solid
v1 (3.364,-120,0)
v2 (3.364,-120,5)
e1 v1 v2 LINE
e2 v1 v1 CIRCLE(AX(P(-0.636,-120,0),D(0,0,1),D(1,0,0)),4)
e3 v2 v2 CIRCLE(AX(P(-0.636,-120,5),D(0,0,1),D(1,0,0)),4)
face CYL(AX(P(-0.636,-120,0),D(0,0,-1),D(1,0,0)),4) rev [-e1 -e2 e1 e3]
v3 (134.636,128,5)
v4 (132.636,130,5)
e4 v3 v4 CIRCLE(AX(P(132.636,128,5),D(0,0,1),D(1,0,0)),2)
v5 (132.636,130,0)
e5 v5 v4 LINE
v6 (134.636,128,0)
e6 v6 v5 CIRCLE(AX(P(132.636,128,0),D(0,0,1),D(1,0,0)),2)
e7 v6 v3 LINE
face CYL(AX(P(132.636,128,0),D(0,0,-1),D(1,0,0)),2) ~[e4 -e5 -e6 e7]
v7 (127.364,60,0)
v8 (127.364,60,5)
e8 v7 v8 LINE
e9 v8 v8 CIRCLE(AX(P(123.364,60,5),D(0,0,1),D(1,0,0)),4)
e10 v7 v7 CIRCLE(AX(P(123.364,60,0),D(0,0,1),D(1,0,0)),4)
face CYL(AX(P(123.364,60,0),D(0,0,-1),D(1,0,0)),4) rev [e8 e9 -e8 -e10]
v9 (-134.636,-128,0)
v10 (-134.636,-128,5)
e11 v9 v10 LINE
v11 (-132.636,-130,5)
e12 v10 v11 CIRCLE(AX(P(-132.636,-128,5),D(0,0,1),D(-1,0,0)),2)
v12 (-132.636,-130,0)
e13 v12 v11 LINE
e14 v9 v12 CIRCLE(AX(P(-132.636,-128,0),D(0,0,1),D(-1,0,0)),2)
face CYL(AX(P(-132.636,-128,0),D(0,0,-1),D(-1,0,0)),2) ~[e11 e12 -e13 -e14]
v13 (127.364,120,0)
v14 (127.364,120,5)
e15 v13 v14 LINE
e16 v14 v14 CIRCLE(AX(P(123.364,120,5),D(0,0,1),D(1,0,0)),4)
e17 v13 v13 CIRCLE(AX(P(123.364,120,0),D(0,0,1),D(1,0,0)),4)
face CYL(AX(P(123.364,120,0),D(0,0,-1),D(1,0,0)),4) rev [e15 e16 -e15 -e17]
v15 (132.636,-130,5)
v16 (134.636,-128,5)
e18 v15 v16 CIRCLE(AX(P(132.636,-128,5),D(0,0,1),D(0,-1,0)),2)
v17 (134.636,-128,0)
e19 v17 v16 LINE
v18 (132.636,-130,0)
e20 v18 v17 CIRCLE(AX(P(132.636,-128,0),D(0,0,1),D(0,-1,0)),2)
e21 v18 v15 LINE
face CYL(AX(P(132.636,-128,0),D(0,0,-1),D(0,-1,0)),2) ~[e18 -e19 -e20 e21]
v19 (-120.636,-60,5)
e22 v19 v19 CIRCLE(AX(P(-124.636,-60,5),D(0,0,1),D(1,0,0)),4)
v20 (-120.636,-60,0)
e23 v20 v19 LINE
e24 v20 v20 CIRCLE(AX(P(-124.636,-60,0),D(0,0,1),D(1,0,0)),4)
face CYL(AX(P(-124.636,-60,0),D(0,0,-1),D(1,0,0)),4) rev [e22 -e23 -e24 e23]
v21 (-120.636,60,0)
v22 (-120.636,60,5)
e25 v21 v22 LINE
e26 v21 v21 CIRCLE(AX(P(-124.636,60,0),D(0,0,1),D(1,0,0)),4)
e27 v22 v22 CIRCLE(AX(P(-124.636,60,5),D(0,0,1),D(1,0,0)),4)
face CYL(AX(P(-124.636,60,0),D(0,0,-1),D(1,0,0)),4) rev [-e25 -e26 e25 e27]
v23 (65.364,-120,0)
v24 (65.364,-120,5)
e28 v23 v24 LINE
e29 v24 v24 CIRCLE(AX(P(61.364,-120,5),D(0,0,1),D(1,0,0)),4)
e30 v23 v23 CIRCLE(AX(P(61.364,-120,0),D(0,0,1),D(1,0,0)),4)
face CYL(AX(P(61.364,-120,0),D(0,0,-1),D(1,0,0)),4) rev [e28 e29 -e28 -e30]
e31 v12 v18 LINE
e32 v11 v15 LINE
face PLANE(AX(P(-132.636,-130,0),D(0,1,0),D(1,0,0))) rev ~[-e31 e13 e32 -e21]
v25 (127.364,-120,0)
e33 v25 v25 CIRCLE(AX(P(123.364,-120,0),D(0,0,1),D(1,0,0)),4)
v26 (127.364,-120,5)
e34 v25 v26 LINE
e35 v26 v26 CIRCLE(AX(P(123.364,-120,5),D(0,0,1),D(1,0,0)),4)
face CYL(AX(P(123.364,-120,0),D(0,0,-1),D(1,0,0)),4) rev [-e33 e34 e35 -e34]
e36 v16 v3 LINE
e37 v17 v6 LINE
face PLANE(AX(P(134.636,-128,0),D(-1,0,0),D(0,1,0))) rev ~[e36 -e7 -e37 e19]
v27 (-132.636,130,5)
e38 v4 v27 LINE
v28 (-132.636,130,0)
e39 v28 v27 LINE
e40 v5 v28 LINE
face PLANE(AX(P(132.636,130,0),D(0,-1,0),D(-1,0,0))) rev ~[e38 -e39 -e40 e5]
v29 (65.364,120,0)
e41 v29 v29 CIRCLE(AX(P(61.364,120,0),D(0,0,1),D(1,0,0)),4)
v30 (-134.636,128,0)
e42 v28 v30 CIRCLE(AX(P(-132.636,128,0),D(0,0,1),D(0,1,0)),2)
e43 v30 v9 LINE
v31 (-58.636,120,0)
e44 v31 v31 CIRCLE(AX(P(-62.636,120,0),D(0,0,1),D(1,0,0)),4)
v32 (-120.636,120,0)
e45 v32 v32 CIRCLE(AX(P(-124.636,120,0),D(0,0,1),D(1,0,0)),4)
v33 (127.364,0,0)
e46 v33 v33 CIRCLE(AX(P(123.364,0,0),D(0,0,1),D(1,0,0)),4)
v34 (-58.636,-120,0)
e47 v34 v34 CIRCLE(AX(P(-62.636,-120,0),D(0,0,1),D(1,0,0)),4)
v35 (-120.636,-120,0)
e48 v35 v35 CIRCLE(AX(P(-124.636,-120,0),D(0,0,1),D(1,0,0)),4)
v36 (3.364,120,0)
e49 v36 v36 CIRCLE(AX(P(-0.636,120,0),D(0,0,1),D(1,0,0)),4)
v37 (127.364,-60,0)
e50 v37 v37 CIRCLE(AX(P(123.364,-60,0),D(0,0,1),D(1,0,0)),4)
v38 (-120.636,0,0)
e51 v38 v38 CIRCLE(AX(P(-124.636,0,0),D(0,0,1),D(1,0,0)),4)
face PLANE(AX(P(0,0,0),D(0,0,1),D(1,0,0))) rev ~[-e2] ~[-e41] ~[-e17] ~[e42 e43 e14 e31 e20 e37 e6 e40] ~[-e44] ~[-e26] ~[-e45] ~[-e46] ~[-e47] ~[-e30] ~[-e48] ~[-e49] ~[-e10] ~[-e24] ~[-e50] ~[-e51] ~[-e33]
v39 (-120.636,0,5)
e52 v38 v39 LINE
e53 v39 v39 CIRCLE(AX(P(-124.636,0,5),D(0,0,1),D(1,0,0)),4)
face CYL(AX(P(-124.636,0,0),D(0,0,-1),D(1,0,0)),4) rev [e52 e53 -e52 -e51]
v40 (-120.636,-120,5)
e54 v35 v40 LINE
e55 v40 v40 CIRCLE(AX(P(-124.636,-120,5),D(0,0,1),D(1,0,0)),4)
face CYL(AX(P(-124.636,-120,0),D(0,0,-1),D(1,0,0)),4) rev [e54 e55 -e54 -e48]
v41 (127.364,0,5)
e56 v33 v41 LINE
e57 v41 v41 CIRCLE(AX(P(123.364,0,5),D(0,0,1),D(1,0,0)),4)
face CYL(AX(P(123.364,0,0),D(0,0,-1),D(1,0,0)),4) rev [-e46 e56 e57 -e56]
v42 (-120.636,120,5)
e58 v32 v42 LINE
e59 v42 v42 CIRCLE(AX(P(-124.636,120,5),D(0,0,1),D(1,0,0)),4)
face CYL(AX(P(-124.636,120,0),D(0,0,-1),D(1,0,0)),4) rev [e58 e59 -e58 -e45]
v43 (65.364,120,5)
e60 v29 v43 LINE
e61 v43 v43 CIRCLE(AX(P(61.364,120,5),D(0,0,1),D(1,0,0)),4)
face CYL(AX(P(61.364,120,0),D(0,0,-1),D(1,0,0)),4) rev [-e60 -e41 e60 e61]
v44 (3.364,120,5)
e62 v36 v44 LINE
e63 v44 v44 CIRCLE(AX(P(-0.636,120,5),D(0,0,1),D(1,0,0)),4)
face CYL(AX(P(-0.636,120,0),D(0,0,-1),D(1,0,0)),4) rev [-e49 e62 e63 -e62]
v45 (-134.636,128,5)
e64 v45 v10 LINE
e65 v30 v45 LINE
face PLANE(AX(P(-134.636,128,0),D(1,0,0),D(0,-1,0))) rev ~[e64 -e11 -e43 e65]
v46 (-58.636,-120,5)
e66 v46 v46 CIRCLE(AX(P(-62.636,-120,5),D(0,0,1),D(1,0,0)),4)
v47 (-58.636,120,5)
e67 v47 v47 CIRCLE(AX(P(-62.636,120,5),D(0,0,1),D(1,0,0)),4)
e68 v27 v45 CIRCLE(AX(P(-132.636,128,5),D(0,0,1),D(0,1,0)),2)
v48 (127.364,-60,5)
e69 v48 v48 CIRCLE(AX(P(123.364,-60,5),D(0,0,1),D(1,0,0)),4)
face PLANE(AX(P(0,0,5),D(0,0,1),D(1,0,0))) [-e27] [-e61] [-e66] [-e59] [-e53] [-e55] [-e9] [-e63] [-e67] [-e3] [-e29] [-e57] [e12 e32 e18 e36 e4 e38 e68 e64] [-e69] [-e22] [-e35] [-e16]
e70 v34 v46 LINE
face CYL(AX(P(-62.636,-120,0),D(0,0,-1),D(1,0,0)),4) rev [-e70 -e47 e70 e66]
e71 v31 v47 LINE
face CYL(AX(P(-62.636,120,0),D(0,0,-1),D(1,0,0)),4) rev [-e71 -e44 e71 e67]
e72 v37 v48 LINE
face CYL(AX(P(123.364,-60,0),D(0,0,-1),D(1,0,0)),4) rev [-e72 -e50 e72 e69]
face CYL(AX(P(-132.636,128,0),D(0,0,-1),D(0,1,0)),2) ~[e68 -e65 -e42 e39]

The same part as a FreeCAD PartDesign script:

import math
import FreeCAD as App
import Part
import Sketcher

doc = App.newDocument("Part")
body = doc.addObject("PartDesign::Body", "Body")

# Sketch on XY plane
sketch1 = body.newObject("Sketcher::SketchObject", "Sketch")
sketch1.AttachmentSupport = (doc.getObject("XY_Plane"), [""])
sketch1.MapMode = "FlatFace"
sketch1.addGeometry([
    Part.ArcOfCircle(Part.Circle(App.Vector(-132.636, 128, 0), App.Vector(0, 0, 1), 2), math.radians(90), math.radians(180)),  # 0
    Part.LineSegment(App.Vector(-134.636, 128, 0), App.Vector(-134.636, -128, 0)),  # 1
    Part.ArcOfCircle(Part.Circle(App.Vector(-132.636, -128, 0), App.Vector(0, 0, 1), 2), math.radians(180), math.radians(270)),  # 2
    Part.LineSegment(App.Vector(-132.636, -130, 0), App.Vector(132.636, -130, 0)),  # 3
    Part.ArcOfCircle(Part.Circle(App.Vector(132.636, -128, 0), App.Vector(0, 0, 1), 2), math.radians(-90), math.radians(0)),  # 4
    Part.LineSegment(App.Vector(134.636, -128, 0), App.Vector(134.636, 128, 0)),  # 5
    Part.ArcOfCircle(Part.Circle(App.Vector(132.636, 128, 0), App.Vector(0, 0, 1), 2), math.radians(0), math.radians(90)),  # 6
    Part.LineSegment(App.Vector(132.636, 130, 0), App.Vector(-132.636, 130, 0)),  # 7
    Part.Circle(App.Vector(-124.636, -120, 0), App.Vector(0, 0, 1), 4),  # 8
    Part.Circle(App.Vector(-62.636, -120, 0), App.Vector(0, 0, 1), 4),  # 9
    Part.Circle(App.Vector(-0.636, -120, 0), App.Vector(0, 0, 1), 4),  # 10
    Part.Circle(App.Vector(-124.636, -60, 0), App.Vector(0, 0, 1), 4),  # 11
    Part.Circle(App.Vector(61.364, -120, 0), App.Vector(0, 0, 1), 4),  # 12
    Part.Circle(App.Vector(123.364, -120, 0), App.Vector(0, 0, 1), 4),  # 13
    Part.Circle(App.Vector(123.364, -60, 0), App.Vector(0, 0, 1), 4),  # 14
    Part.Circle(App.Vector(-124.636, 0, 0), App.Vector(0, 0, 1), 4),  # 15
    Part.Circle(App.Vector(-124.636, 60, 0), App.Vector(0, 0, 1), 4),  # 16
    Part.Circle(App.Vector(-124.636, 120, 0), App.Vector(0, 0, 1), 4),  # 17
    Part.Circle(App.Vector(-62.636, 120, 0), App.Vector(0, 0, 1), 4),  # 18
    Part.Circle(App.Vector(-0.636, 120, 0), App.Vector(0, 0, 1), 4),  # 19
    Part.Circle(App.Vector(123.364, 0, 0), App.Vector(0, 0, 1), 4),  # 20
    Part.Circle(App.Vector(123.364, 60, 0), App.Vector(0, 0, 1), 4),  # 21
    Part.Circle(App.Vector(61.364, 120, 0), App.Vector(0, 0, 1), 4),  # 22
    Part.Circle(App.Vector(123.364, 120, 0), App.Vector(0, 0, 1), 4),  # 23
], False)
sketch1.addConstraint([
    Sketcher.Constraint("Tangent", 0, 2, 1, 1),
    Sketcher.Constraint("Tangent", 1, 2, 2, 1),
    Sketcher.Constraint("Tangent", 2, 2, 3, 1),
    Sketcher.Constraint("Tangent", 3, 2, 4, 1),
    Sketcher.Constraint("Tangent", 4, 2, 5, 1),
    Sketcher.Constraint("Tangent", 5, 2, 6, 1),
    Sketcher.Constraint("Tangent", 6, 2, 7, 1),
    Sketcher.Constraint("Tangent", 7, 2, 0, 1),
    Sketcher.Constraint("Vertical", 1),
    Sketcher.Constraint("Horizontal", 3),
    Sketcher.Constraint("Vertical", 5),
    Sketcher.Constraint("Horizontal", 7),
    Sketcher.Constraint("Equal", 0, 2),
    Sketcher.Constraint("Equal", 2, 4),
    Sketcher.Constraint("Equal", 4, 6),
    Sketcher.Constraint("Equal", 8, 9),
    Sketcher.Constraint("Equal", 9, 10),
    Sketcher.Constraint("Equal", 10, 11),
    Sketcher.Constraint("Equal", 11, 12),
    Sketcher.Constraint("Equal", 12, 13),
    Sketcher.Constraint("Equal", 13, 14),
    Sketcher.Constraint("Equal", 14, 15),
    Sketcher.Constraint("Equal", 15, 16),
    Sketcher.Constraint("Equal", 16, 17),
    Sketcher.Constraint("Equal", 17, 18),
    Sketcher.Constraint("Equal", 18, 19),
    Sketcher.Constraint("Equal", 19, 20),
    Sketcher.Constraint("Equal", 20, 21),
    Sketcher.Constraint("Equal", 21, 22),
    Sketcher.Constraint("Equal", 22, 23),
    Sketcher.Constraint("Symmetric", 0, 3, 4, 3, -1, 1),
    Sketcher.Constraint("Symmetric", 11, 3, 16, 3, -1),
    Sketcher.Constraint("Symmetric", 8, 3, 17, 3, -1),
    Sketcher.Constraint("Symmetric", 9, 3, 18, 3, -1),
    Sketcher.Constraint("Symmetric", 10, 3, 19, 3, -1),
    Sketcher.Constraint("Symmetric", 14, 3, 21, 3, -1),
    Sketcher.Constraint("Symmetric", 12, 3, 22, 3, -1),
    Sketcher.Constraint("Symmetric", 13, 3, 23, 3, -1),
    Sketcher.Constraint("PointOnObject", 15, 3, -1),
    Sketcher.Constraint("PointOnObject", 20, 3, -1),
    Sketcher.Constraint("Horizontal", 8, 3, 9, 3),
    Sketcher.Constraint("Horizontal", 9, 3, 10, 3),
    Sketcher.Constraint("Horizontal", 10, 3, 12, 3),
    Sketcher.Constraint("Horizontal", 12, 3, 13, 3),
    Sketcher.Constraint("Horizontal", 11, 3, 14, 3),
    Sketcher.Constraint("Vertical", 8, 3, 11, 3),
    Sketcher.Constraint("Vertical", 13, 3, 14, 3),
    Sketcher.Constraint("Vertical", 11, 3, 15, 3),
    Sketcher.Constraint("Vertical", 14, 3, 20, 3),
    Sketcher.Constraint("Diameter", 8, 8.0),
    Sketcher.Constraint("Radius", 0, 2.0),
    Sketcher.Constraint("DistanceY", 1, 2, 1, 1, 256.0),
    Sketcher.Constraint("DistanceY", 8, 3, -1, 1, 120.0),
    Sketcher.Constraint("DistanceY", 11, 3, -1, 1, 60.0),
    Sketcher.Constraint("DistanceX", 2, 3, 8, 3, 8.0),
    Sketcher.Constraint("DistanceX", 8, 3, 9, 3, 62.0),
    Sketcher.Constraint("DistanceX", 9, 3, 10, 3, 62.0),
    Sketcher.Constraint("DistanceX", 10, 3, 12, 3, 62.0),
    Sketcher.Constraint("DistanceX", 12, 3, 13, 3, 62.0),
    Sketcher.Constraint("DistanceX", 3, 1, 3, 2, 265.272),
])
pad1 = body.newObject("PartDesign::Pad", "Pad")
pad1.Profile = sketch1
pad1.Length = 5

doc.recompute()
